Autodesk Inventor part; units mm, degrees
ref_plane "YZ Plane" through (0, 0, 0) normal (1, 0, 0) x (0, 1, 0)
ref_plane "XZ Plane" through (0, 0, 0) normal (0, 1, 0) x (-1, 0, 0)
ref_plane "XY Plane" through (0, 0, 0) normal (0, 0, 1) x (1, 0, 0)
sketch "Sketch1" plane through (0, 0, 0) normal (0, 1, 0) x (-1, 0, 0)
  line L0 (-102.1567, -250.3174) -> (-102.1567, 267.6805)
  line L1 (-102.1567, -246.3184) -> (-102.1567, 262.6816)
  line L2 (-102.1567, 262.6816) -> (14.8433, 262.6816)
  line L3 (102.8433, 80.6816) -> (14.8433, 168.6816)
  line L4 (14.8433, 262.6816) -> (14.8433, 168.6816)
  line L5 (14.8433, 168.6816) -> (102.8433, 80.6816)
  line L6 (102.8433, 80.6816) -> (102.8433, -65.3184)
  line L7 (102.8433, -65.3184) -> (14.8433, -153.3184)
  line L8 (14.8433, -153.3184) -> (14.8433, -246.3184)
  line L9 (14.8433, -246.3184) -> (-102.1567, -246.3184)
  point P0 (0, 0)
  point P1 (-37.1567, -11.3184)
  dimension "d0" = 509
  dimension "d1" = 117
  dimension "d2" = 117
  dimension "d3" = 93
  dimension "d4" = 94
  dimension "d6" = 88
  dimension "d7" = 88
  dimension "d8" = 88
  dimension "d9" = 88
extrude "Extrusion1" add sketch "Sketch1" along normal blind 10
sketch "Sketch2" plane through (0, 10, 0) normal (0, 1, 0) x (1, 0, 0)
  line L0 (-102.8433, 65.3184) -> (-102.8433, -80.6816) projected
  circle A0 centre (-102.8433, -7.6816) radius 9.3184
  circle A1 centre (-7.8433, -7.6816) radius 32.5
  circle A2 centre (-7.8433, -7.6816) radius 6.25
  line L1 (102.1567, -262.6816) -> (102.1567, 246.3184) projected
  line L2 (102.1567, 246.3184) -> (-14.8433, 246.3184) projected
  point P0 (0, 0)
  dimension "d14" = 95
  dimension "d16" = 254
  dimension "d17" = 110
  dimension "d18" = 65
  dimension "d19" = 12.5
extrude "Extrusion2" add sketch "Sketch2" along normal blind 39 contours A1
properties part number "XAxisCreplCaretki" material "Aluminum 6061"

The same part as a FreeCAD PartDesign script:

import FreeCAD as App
import Part
import Sketcher


def add_polygon(sketch, points):
    """Adds a closed chain of lines whose ends are joined by coincident constraints."""
    first, n = sketch.GeometryCount, len(points)
    for a, b in zip(points, points[1:] + points[:1]):
        sketch.addGeometry(Part.LineSegment(App.Vector(*a, 0), App.Vector(*b, 0)), False)
    for i in range(n):
        sketch.addConstraint(Sketcher.Constraint("Coincident", first + i, 2, first + (i + 1) % n, 1))

doc = App.newDocument("Part")
body = doc.addObject("PartDesign::Body", "Body")

sketch1 = body.newObject("Sketcher::SketchObject", "Sketch")
sketch1.AttachmentSupport = (doc.getObject("XZ_Plane"), [""])
sketch1.MapMode = "FlatFace"
add_polygon(sketch1, [(102.1567, 262.6816), (102.1567, -246.3184), (-14.8433, -246.3184), (-14.8433, -153.3184), (-102.8433, -65.3184), (-102.8433, 80.6816), (-14.8433, 168.6816), (-14.8433, 262.6816)])
sketch1.addConstraint(Sketcher.Constraint("Vertical", 0))
sketch1.addConstraint(Sketcher.Constraint("Horizontal", 1))
sketch1.addConstraint(Sketcher.Constraint("Vertical", 2))
sketch1.addConstraint(Sketcher.Constraint("Vertical", 4))
sketch1.addConstraint(Sketcher.Constraint("Vertical", 6))
sketch1.addConstraint(Sketcher.Constraint("Horizontal", 7))
sketch1.addConstraint(Sketcher.Constraint("Perpendicular", 3, 5))
sketch1.addConstraint(Sketcher.Constraint("Vertical", 2, 2, 5, 2))
sketch1.addConstraint(Sketcher.Constraint("Equal", 3, 5))
sketch1.addConstraint(Sketcher.Constraint("DistanceX", 1, 2, 1, 1, 117.0))
sketch1.addConstraint(Sketcher.Constraint("DistanceY", 0, 2, 0, 1, 509.0))
sketch1.addConstraint(Sketcher.Constraint("DistanceY", 2, 1, 2, 2, 93.0))
sketch1.addConstraint(Sketcher.Constraint("DistanceY", 6, 1, 6, 2, 94.0))
sketch1.addConstraint(Sketcher.Constraint("DistanceX", 3, 2, 2, 2, 88.0))
sketch1.addConstraint(Sketcher.Constraint("DistanceX", -1, 1, 0, 2, 102.1567))
sketch1.addConstraint(Sketcher.Constraint("DistanceY", 0, 2, -1, 1, 246.3184))
pad1 = body.newObject("PartDesign::Pad", "Pad")
pad1.Profile = sketch1
pad1.Length = 10
pad1.Reversed = True

sketch2 = body.newObject("Sketcher::SketchObject", "Sketch001")
sketch2.AttachmentSupport = (doc.getObject("XZ_Plane"), [""])
sketch2.MapMode = "FlatFace"
sketch2.AttachmentOffset = App.Placement(App.Vector(0, 0, -10), App.Rotation())
sketch2.addGeometry(Part.Circle(App.Vector(-7.8433, 7.6816, 0), App.Vector(0, 0, 1), 32.5), False)
sketch2.addGeometry(Part.Circle(App.Vector(-7.8433, 7.6816, 0), App.Vector(0, 0, 1), 6.25), False)
sketch2.addConstraint(Sketcher.Constraint("Coincident", 1, 3, 0, 3))
sketch2.addConstraint(Sketcher.Constraint("Diameter", 0, 65.0))
sketch2.addConstraint(Sketcher.Constraint("Diameter", 1, 12.5))
sketch2.addConstraint(Sketcher.Constraint("DistanceX", 0, 3, -1, 1, 7.8433))
sketch2.addConstraint(Sketcher.Constraint("DistanceY", -1, 1, 0, 3, 7.6816))
pad2 = body.newObject("PartDesign::Pad", "Pad001")
pad2.Profile = sketch2
pad2.Length = 39
pad2.Reversed = True

doc.recompute()
